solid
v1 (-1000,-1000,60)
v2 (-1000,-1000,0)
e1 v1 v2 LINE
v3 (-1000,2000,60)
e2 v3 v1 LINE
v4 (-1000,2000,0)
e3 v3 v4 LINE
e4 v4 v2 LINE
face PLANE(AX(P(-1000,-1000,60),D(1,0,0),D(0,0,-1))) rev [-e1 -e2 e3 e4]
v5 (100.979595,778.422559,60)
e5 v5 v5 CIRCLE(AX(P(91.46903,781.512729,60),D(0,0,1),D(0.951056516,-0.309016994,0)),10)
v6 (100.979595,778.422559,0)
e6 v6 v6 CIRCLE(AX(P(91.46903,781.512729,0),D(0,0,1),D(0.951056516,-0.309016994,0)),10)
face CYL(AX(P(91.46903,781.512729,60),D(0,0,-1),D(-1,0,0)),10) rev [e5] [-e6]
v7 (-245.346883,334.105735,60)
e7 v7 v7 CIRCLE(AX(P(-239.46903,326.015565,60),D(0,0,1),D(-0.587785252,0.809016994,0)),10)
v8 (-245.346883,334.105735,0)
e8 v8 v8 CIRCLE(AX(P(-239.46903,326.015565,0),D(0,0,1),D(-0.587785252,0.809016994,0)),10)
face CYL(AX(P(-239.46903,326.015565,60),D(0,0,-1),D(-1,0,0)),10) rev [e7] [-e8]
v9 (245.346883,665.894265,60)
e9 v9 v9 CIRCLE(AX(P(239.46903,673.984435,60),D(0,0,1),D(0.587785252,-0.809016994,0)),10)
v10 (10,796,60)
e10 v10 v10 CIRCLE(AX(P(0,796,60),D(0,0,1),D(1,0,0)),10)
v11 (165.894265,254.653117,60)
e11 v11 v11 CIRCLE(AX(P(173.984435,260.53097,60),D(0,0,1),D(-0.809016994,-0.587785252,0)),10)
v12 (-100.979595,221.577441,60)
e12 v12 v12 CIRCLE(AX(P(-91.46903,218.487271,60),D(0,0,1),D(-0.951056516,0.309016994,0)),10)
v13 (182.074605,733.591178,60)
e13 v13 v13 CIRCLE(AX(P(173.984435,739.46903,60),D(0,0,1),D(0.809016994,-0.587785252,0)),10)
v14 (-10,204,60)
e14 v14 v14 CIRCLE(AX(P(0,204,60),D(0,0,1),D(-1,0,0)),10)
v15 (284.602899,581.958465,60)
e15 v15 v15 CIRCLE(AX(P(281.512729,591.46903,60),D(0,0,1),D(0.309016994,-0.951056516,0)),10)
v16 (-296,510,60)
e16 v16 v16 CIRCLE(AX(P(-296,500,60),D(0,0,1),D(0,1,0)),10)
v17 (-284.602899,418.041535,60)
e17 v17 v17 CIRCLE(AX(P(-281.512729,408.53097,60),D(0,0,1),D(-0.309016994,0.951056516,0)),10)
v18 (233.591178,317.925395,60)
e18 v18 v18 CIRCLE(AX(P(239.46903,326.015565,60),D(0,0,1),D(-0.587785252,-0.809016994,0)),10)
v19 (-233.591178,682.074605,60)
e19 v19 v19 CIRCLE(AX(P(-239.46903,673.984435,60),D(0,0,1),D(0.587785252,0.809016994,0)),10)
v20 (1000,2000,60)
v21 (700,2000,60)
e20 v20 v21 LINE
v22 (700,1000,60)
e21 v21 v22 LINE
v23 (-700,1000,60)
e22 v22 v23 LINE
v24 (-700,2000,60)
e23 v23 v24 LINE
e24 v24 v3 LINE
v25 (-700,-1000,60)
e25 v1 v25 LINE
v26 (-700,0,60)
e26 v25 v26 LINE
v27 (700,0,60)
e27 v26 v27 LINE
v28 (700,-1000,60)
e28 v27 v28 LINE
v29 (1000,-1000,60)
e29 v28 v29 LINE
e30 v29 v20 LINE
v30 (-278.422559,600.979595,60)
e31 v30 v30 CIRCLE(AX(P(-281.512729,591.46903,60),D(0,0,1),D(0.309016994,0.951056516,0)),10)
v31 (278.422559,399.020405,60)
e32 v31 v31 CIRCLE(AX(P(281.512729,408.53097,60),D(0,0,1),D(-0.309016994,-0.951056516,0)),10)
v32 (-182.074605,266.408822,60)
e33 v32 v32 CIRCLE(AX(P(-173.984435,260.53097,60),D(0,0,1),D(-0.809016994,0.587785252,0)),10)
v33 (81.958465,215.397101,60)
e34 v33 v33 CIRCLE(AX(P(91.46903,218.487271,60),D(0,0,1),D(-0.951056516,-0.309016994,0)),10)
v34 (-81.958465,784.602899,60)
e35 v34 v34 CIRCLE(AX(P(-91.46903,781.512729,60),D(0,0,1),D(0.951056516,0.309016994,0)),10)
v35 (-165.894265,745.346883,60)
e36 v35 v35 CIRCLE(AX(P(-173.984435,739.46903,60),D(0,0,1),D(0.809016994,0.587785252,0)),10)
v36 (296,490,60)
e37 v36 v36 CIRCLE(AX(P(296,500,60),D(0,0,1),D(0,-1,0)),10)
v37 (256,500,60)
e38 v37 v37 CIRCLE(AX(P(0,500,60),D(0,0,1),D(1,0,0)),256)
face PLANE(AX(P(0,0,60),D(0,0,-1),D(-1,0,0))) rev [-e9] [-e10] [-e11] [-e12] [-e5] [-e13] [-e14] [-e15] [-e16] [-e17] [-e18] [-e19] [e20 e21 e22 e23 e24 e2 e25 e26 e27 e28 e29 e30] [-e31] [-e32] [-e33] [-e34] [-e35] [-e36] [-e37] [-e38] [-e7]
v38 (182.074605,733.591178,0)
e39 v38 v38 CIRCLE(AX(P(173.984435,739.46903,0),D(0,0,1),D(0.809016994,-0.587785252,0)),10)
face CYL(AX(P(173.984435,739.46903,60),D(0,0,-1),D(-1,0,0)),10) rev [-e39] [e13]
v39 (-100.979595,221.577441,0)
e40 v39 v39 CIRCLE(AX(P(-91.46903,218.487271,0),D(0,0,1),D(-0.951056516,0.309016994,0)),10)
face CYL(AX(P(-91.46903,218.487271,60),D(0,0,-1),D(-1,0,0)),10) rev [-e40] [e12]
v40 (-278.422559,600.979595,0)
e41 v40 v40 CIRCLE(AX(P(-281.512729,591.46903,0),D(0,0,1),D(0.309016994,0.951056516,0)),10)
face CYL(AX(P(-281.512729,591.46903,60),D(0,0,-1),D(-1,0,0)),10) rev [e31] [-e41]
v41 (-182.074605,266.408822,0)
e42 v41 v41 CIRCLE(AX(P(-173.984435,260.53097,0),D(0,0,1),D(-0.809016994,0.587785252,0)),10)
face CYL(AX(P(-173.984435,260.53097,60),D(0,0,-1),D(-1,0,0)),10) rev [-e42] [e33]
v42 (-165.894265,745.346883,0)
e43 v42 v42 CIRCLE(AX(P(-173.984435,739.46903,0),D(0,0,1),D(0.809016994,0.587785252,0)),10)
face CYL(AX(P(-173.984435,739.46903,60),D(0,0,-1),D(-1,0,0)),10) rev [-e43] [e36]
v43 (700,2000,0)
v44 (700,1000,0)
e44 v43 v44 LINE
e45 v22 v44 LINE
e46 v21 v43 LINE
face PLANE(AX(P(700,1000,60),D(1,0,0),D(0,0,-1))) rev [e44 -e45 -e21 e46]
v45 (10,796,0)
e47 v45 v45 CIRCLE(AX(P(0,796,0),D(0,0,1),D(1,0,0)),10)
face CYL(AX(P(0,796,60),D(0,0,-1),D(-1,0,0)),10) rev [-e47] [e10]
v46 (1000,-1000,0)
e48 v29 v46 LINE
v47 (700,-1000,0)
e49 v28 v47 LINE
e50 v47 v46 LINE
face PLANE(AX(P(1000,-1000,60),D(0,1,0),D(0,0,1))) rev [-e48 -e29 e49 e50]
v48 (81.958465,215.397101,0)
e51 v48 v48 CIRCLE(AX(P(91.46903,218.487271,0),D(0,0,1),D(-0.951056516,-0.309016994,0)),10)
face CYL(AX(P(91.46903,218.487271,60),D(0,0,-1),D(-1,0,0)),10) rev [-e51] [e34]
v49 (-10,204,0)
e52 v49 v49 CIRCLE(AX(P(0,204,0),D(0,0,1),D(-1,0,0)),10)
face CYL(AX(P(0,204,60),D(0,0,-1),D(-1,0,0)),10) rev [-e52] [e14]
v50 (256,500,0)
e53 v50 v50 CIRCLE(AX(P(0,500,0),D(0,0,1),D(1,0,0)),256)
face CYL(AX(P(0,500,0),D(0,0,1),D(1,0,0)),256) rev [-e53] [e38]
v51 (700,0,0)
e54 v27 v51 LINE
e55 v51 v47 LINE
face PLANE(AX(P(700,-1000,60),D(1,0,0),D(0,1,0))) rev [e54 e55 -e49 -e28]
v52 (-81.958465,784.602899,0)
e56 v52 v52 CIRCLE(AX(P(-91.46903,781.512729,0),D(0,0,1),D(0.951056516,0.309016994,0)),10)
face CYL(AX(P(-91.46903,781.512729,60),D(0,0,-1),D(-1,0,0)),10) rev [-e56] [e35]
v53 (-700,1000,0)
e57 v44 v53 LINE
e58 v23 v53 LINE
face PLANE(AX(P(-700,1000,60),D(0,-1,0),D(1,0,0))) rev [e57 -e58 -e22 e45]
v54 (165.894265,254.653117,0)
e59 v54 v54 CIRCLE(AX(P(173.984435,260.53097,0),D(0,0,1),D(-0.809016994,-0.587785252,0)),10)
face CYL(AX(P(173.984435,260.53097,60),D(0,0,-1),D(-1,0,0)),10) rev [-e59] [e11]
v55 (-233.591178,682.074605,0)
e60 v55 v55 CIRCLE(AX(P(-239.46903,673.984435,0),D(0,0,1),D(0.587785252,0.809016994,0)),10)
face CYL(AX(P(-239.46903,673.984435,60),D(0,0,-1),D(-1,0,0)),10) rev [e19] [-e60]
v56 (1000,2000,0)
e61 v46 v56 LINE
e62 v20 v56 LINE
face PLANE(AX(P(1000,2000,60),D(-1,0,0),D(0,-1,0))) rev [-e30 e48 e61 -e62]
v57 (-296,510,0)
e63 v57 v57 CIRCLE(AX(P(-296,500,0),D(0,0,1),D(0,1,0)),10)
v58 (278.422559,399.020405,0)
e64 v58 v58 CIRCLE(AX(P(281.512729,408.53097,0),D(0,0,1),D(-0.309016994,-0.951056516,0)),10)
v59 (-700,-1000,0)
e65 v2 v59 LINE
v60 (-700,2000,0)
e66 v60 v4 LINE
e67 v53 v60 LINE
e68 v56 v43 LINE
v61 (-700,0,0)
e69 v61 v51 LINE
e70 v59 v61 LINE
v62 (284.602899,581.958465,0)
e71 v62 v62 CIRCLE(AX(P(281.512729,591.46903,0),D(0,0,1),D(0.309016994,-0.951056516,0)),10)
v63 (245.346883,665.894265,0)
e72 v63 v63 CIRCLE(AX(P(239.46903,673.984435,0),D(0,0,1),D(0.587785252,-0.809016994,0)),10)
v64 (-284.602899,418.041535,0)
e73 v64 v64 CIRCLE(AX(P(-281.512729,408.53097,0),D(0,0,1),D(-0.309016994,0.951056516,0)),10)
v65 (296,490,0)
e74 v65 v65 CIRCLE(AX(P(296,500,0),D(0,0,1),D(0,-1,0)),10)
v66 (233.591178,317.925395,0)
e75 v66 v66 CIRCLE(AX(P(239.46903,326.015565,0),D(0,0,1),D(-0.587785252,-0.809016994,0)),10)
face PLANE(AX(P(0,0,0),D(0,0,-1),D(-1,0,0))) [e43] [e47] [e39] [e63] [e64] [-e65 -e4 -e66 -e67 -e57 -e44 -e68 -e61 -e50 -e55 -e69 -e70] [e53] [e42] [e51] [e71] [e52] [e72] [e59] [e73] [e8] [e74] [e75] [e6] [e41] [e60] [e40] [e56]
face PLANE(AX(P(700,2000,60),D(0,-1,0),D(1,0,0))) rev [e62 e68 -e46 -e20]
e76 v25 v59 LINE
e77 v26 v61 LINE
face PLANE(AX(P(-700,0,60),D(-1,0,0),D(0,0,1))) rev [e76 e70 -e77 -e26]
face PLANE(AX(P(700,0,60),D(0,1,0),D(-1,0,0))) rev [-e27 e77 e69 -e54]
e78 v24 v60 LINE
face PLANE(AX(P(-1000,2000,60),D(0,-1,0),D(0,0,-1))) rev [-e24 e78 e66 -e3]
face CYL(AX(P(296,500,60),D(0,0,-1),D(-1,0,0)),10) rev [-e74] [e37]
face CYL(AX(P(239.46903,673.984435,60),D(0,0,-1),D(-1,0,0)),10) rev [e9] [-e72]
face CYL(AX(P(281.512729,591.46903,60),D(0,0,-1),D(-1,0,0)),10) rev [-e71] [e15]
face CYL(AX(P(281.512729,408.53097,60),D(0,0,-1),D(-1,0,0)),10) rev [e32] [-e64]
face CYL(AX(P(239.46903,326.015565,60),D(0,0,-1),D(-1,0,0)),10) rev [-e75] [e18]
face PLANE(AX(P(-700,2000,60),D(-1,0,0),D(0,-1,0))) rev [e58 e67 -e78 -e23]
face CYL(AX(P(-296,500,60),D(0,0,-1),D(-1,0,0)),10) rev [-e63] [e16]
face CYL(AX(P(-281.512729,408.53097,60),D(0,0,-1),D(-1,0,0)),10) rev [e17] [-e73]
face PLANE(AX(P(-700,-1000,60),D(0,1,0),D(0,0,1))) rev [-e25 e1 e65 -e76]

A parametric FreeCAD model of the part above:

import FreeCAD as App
import Part
import Sketcher
Q = App.Units.Quantity


def add_polygon(sketch, points):
    """Adds a closed chain of lines whose ends are joined by coincident constraints."""
    first, n = sketch.GeometryCount, len(points)
    for a, b in zip(points, points[1:] + points[:1]):
        sketch.addGeometry(Part.LineSegment(App.Vector(*a, 0), App.Vector(*b, 0)), False)
    for i in range(n):
        sketch.addConstraint(Sketcher.Constraint("Coincident", first + i, 2, first + (i + 1) % n, 1))

doc = App.newDocument("Part")
body = doc.addObject("PartDesign::Body", "Body")

# Sketch on XY plane
sketch1 = body.newObject("Sketcher::SketchObject", "Sketch")
sketch1.AttachmentSupport = (doc.getObject("XY_Plane"), [""])
sketch1.MapMode = "FlatFace"
add_polygon(sketch1, [(-700, 2000), (-1000, 2000), (-1000, -1000), (-700, -1000), (-700, 0), (700, 0), (700, -1000), (1000, -1000), (1000, 2000), (700, 2000), (700, 1000), (-700, 1000)])  # lines 0-11
sketch1.addConstraint(Sketcher.Constraint("Horizontal", 0))
sketch1.addConstraint(Sketcher.Constraint("Vertical", 1))
sketch1.addConstraint(Sketcher.Constraint("Horizontal", 2))
sketch1.addConstraint(Sketcher.Constraint("Vertical", 3))
sketch1.addConstraint(Sketcher.Constraint("Horizontal", 4))
sketch1.addConstraint(Sketcher.Constraint("Vertical", 5))
sketch1.addConstraint(Sketcher.Constraint("Horizontal", 6))
sketch1.addConstraint(Sketcher.Constraint("Vertical", 7))
sketch1.addConstraint(Sketcher.Constraint("Horizontal", 8))
sketch1.addConstraint(Sketcher.Constraint("Vertical", 9))
sketch1.addConstraint(Sketcher.Constraint("Horizontal", 10))
sketch1.addConstraint(Sketcher.Constraint("Vertical", 11))
sketch1.addConstraint(Sketcher.Constraint("Symmetric", 3, 2, 4, 2, -1, 1))
sketch1.addConstraint(Sketcher.Constraint("Symmetric", 2, 2, 9, 2, -1, 1))
sketch1.addConstraint(Sketcher.Constraint("Symmetric", 5, 2, 10, 2, -1, 1))
sketch1.addConstraint(Sketcher.Constraint("Symmetric", 0, 2, 7, 2, -2))
sketch1.addConstraint(Sketcher.Constraint("Equal", 5, 9))
sketch1.addConstraint(Sketcher.Constraint("DistanceX", 0, 2, 0, 1, Q("300 mm")))
sketch1.addConstraint(Sketcher.Constraint("DistanceX", 4, 1, 4, 2, Q("1400 mm")))
sketch1.addConstraint(Sketcher.Constraint("DistanceY", 1, 2, 1, 1, Q("3000 mm")))
pad1 = body.newObject("PartDesign::Pad", "Pad")
pad1.Profile = sketch1
pad1.Length = 60

# Sketch on XY plane
sketch2 = body.newObject("Sketcher::SketchObject", "Sketch001")
sketch2.AttachmentSupport = (doc.getObject("XY_Plane"), [""])
sketch2.MapMode = "FlatFace"
sketch2.AttachmentOffset = App.Placement(App.Vector(0, 0, 60), App.Rotation())
sketch2.addGeometry(Part.Circle(App.Vector(0, 500, 0), App.Vector(0, 0, 1), 256), False)
sketch2.addConstraint(Sketcher.Constraint("PointOnObject", 0, 3, -2))
sketch2.addConstraint(Sketcher.Constraint("Diameter", 0, Q("512 mm")))
sketch2.addConstraint(Sketcher.Constraint("DistanceY", -1, 1, 0, 3, Q("500 mm")))
pocket1 = body.newObject("PartDesign::Pocket", "Pocket")
pocket1.Profile = sketch2
pocket1.Type = "ThroughAll"

# Sketch on XY plane
sketch3 = body.newObject("Sketcher::SketchObject", "Sketch002")
sketch3.AttachmentSupport = (doc.getObject("XY_Plane"), [""])
sketch3.MapMode = "FlatFace"
sketch3.addGeometry(Part.Circle(App.Vector(0, 796, 0), App.Vector(0, 0, 1), 10), False)
sketch3.addConstraint(Sketcher.Constraint("PointOnObject", 0, 3, -2))
sketch3.addConstraint(Sketcher.Constraint("Diameter", 0, Q("20 mm")))
sketch3.addConstraint(Sketcher.Constraint("DistanceY", -1, 1, 0, 3, Q("796 mm")))
pocket2 = body.newObject("PartDesign::Pocket", "Pocket001")
pocket2.Profile = sketch3
pocket2.Type = "ThroughAll"
pocket2.Reversed = True
doc.recompute()

datumline = body.newObject("PartDesign::Line", "DatumLine")
datumline.Placement = App.Placement(App.Vector(0, 500, 0), App.Rotation(App.Vector(0, 0, 1), App.Vector(0, 0, 1)))
polarpattern = body.newObject("PartDesign::PolarPattern", "PolarPattern")
polarpattern.Originals = [pocket2]
polarpattern.Axis = (datumline, [""])
polarpattern.Angle = 360
polarpattern.Occurrences = 20
body.Tip = polarpattern

doc.recompute()
